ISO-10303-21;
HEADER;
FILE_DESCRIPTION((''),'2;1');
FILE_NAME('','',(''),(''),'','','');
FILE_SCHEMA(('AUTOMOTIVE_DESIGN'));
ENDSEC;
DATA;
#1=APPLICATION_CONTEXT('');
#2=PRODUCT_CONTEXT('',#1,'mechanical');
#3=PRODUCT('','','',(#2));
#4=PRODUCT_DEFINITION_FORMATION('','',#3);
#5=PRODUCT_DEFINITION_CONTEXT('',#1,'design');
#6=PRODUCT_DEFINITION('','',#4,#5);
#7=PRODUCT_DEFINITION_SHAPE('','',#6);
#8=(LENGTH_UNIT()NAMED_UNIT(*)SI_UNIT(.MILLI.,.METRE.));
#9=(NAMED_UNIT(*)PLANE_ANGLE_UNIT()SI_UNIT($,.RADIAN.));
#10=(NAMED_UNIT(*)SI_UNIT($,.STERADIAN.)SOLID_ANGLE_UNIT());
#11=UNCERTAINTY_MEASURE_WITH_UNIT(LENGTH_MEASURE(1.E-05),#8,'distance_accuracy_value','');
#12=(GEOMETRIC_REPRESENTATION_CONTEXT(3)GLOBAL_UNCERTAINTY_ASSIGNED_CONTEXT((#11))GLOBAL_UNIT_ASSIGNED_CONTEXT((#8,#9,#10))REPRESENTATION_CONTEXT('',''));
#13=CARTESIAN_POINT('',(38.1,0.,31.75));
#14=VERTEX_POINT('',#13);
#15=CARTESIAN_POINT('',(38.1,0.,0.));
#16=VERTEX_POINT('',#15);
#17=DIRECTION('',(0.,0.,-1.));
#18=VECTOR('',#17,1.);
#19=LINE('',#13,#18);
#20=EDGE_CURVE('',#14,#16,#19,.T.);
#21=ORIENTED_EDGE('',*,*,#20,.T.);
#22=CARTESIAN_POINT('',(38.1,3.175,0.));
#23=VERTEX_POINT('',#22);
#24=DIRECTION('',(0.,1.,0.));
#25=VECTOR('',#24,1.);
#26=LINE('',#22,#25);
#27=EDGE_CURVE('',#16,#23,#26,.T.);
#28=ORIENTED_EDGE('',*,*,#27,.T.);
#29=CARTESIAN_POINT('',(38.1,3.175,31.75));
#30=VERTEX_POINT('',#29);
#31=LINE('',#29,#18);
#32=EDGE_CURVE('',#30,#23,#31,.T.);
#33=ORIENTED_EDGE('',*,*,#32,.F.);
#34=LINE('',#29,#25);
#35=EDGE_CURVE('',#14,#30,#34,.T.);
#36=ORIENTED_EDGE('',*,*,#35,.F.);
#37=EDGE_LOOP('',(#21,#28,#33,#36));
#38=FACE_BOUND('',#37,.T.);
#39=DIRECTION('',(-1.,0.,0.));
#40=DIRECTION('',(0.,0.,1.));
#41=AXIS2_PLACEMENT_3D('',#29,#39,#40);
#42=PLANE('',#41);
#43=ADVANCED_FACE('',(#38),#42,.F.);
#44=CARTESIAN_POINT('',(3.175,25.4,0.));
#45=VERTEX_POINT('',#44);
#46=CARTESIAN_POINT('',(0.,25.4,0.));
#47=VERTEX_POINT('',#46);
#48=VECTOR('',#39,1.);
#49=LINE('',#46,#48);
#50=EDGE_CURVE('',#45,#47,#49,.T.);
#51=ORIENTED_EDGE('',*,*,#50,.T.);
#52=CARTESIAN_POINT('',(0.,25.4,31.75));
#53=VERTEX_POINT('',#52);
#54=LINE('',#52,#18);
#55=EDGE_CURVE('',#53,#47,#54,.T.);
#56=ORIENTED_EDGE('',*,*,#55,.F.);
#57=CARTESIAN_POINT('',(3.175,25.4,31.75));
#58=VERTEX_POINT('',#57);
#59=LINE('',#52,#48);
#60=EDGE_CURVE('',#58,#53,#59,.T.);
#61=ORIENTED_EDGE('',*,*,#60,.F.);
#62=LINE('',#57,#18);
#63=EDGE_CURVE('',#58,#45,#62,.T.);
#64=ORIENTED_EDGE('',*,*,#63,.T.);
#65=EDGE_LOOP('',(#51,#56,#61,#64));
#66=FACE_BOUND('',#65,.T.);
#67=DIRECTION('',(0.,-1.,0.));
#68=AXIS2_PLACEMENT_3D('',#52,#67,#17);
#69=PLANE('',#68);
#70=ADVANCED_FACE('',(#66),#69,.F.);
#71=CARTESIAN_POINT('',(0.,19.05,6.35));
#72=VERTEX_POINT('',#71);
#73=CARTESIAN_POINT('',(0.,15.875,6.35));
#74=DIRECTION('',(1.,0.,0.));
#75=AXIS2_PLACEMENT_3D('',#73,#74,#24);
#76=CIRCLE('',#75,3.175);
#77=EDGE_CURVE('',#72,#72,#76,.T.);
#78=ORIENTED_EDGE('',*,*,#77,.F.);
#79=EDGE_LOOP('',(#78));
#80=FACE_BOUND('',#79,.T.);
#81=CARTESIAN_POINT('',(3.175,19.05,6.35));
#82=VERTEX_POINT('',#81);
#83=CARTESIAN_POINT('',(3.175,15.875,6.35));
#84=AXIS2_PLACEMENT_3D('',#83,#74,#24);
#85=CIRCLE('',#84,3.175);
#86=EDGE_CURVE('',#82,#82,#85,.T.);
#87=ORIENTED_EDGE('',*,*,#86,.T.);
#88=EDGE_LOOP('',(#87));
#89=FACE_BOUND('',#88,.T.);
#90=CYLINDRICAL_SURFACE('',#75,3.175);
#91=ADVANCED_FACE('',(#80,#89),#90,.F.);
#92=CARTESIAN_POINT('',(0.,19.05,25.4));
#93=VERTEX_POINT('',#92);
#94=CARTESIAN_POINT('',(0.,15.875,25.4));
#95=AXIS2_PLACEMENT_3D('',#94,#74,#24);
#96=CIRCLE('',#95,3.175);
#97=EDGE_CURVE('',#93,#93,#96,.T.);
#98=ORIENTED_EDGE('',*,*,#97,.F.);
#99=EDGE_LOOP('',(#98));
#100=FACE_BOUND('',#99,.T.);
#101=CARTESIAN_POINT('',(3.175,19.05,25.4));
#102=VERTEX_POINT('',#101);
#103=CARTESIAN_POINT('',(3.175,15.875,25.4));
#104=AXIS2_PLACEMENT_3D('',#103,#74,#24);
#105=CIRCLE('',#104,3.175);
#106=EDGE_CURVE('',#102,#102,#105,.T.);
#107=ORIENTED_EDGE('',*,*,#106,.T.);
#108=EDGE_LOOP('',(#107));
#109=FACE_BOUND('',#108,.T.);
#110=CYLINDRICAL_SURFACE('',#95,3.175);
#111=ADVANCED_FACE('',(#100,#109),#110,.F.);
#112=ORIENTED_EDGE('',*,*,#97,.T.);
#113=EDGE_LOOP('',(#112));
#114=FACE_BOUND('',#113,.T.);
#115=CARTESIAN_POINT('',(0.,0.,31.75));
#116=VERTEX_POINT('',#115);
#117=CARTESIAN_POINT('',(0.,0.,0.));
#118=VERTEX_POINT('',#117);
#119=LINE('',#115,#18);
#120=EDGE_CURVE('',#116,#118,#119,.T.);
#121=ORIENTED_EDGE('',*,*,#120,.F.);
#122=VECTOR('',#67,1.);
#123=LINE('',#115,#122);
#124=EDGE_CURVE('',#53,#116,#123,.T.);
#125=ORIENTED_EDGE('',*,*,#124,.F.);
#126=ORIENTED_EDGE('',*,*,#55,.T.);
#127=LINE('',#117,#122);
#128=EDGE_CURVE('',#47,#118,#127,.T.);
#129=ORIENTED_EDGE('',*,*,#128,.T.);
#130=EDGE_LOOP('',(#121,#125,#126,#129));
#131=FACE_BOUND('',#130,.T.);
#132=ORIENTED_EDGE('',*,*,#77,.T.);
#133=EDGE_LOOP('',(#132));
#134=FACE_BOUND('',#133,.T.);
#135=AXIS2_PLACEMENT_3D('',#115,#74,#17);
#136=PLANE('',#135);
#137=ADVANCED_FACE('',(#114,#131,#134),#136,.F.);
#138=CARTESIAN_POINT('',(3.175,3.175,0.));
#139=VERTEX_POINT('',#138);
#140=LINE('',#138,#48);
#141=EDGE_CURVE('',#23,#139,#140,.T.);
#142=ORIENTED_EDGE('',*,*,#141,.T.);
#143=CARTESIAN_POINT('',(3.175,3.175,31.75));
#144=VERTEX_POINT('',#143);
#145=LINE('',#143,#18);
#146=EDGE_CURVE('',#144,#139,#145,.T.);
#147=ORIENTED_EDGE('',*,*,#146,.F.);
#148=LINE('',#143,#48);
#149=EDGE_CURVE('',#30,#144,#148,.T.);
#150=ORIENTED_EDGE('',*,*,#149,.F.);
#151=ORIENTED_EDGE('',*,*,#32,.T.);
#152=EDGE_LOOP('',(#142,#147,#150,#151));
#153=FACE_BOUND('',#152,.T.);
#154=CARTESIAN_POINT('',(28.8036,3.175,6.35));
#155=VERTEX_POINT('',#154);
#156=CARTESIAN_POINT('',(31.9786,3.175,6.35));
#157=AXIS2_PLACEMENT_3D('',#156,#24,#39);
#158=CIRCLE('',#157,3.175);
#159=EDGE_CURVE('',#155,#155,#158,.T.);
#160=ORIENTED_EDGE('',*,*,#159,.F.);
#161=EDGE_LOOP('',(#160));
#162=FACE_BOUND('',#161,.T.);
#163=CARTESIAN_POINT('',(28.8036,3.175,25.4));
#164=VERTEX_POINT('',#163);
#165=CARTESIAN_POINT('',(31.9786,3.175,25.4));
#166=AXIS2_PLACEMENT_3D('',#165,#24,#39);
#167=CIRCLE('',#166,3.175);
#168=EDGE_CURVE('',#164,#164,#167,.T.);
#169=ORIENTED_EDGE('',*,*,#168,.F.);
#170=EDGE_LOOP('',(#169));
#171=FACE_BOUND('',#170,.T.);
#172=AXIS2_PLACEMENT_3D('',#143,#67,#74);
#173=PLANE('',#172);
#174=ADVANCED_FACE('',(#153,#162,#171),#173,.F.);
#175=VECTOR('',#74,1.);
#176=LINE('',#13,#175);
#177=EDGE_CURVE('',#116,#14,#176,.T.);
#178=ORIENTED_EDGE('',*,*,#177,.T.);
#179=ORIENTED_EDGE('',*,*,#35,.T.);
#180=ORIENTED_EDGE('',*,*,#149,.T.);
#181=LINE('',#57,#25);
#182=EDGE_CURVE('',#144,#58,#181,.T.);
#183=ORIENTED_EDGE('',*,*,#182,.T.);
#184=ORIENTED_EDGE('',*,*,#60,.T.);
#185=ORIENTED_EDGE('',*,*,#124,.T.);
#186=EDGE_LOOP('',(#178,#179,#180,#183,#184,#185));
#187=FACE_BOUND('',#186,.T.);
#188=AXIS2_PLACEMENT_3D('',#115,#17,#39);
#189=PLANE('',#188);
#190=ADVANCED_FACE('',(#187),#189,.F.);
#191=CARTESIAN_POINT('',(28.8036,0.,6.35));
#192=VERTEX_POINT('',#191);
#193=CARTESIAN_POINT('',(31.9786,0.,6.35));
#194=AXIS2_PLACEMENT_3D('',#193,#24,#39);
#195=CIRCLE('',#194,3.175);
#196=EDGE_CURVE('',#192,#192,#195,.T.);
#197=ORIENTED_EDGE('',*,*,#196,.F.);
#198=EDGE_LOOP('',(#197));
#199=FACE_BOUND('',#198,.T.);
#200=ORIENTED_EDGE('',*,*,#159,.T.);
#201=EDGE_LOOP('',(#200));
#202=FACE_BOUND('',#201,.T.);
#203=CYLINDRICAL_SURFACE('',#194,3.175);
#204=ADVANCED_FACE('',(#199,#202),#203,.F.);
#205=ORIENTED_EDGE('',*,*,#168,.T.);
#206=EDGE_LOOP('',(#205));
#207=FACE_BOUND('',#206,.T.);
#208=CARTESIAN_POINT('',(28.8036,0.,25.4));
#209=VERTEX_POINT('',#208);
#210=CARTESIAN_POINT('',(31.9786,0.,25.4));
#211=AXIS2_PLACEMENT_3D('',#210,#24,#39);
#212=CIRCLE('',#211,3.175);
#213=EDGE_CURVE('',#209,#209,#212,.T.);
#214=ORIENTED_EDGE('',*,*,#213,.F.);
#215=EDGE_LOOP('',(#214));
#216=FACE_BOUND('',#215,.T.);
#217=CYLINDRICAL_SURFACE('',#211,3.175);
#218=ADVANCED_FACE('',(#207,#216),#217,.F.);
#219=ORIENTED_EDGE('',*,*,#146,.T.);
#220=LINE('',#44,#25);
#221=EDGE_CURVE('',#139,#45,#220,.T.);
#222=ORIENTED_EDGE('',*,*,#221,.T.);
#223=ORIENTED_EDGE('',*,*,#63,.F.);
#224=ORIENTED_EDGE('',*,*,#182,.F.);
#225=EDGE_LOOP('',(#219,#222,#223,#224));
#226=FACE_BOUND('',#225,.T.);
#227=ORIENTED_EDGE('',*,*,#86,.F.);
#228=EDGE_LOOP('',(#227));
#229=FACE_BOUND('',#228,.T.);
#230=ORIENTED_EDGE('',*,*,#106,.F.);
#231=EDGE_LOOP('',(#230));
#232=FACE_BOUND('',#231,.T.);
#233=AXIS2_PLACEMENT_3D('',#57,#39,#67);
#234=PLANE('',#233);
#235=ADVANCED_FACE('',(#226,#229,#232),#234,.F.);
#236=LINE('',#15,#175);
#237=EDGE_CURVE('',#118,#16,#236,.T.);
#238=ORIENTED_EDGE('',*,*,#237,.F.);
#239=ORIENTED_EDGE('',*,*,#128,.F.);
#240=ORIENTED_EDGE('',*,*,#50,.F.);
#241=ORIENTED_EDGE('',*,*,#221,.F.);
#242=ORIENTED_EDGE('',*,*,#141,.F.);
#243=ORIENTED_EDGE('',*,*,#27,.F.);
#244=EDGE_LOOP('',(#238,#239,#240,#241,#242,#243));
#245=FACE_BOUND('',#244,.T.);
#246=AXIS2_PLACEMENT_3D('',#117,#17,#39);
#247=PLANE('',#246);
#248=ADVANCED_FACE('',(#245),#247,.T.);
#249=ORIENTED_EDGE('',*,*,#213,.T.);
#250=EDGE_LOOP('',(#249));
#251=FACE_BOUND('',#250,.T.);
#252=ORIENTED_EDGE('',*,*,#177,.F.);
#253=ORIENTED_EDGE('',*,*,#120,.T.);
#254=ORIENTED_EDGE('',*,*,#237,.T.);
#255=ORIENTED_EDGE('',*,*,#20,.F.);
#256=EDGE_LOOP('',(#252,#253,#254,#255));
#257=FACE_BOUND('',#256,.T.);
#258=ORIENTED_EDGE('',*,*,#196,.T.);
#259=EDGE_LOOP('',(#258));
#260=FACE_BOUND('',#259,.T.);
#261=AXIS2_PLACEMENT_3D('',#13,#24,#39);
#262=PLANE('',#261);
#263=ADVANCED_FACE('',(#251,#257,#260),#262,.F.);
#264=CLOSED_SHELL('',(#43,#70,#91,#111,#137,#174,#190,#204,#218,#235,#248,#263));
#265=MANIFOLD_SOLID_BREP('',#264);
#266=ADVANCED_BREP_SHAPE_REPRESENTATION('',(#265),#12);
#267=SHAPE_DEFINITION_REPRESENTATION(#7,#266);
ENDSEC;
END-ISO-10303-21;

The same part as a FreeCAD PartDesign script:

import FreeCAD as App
import Part
import Sketcher

V = App.Vector
Q = App.Units.Quantity

doc = App.newDocument("Part")
body = doc.addObject("PartDesign::Body", "Body")

# Sketch on XY plane
sketch1 = body.newObject("Sketcher::SketchObject", "Sketch")
sketch1.AttachmentSupport = (doc.getObject("XY_Plane"), [""])
sketch1.MapMode = "FlatFace"
sketch1.addGeometry(Part.LineSegment(V(0, 25.4, 0), V(0, 0, 0)), False)
sketch1.addGeometry(Part.LineSegment(V(0, 0, 0), V(38.1, 0, 0)), False)
sketch1.addGeometry(Part.LineSegment(V(38.1, 0, 0), V(38.1, 3.2, 0)), False)
sketch1.addGeometry(Part.LineSegment(V(38.1, 3.2, 0), V(3.2, 3.2, 0)), False)
sketch1.addGeometry(Part.LineSegment(V(3.2, 3.2, 0), V(3.2, 25.4, 0)), False)
sketch1.addGeometry(Part.LineSegment(V(3.2, 25.4, 0), V(0, 25.4, 0)), False)
sketch1.addConstraint(Sketcher.Constraint("Coincident", 0, 2, 1, 1))
sketch1.addConstraint(Sketcher.Constraint("Coincident", 1, 2, 2, 1))
sketch1.addConstraint(Sketcher.Constraint("Coincident", 2, 2, 3, 1))
sketch1.addConstraint(Sketcher.Constraint("Coincident", 3, 2, 4, 1))
sketch1.addConstraint(Sketcher.Constraint("Coincident", 4, 2, 5, 1))
sketch1.addConstraint(Sketcher.Constraint("Coincident", 5, 2, 0, 1))
sketch1.addConstraint(Sketcher.Constraint("Vertical", 0))
sketch1.addConstraint(Sketcher.Constraint("Horizontal", 1))
sketch1.addConstraint(Sketcher.Constraint("Vertical", 2))
sketch1.addConstraint(Sketcher.Constraint("Horizontal", 3))
sketch1.addConstraint(Sketcher.Constraint("Vertical", 4))
sketch1.addConstraint(Sketcher.Constraint("Horizontal", 5))
sketch1.addConstraint(Sketcher.Constraint("Coincident", 0, 2, -1, 1))
sketch1.addConstraint(Sketcher.Constraint("Equal", 5, 2))
sketch1.addConstraint(Sketcher.Constraint("DistanceY", 0, 2, 0, 1, Q("1 in")))
sketch1.addConstraint(Sketcher.Constraint("DistanceX", 1, 1, 1, 2, Q("1.5 in")))
sketch1.addConstraint(Sketcher.Constraint("DistanceX", 3, 2, 3, 1, Q("1.375 in")))
pad1 = body.newObject("PartDesign::Pad", "Pad")
pad1.Profile = sketch1
pad1.Length = Q("1.25 in")

# Sketch on XZ plane
sketch2 = body.newObject("Sketcher::SketchObject", "Sketch001")
sketch2.AttachmentSupport = (doc.getObject("XZ_Plane"), [""])
sketch2.MapMode = "FlatFace"
sketch2.AttachmentOffset = App.Placement(V(0, 0, -0.125 * 25.4), App.Rotation())
sketch2.addGeometry(Part.Circle(V(32, 6.3, 0), V(0, 0, 1), 3.2), False)
sketch2.addGeometry(Part.Circle(V(32, 25.4, 0), V(0, 0, 1), 3.2), False)
sketch2.addConstraint(Sketcher.Constraint("Equal", 0, 1))
sketch2.addConstraint(Sketcher.Constraint("Vertical", 0, 3, 1, 3))
sketch2.addConstraint(Sketcher.Constraint("Diameter", 0, Q("0.25 in")))
sketch2.addConstraint(Sketcher.Constraint("DistanceY", -1, 1, 1, 3, Q("1 in")))
sketch2.addConstraint(Sketcher.Constraint("DistanceY", -1, 1, 0, 3, Q("0.25 in")))
sketch2.addConstraint(Sketcher.Constraint("DistanceX", -1, 1, 0, 3, Q("1.259 in")))
pocket1 = body.newObject("PartDesign::Pocket", "Pocket")
pocket1.Profile = sketch2
pocket1.Type = "ThroughAll"
pocket1.Reversed = True

# Sketch on YZ plane
sketch3 = body.newObject("Sketcher::SketchObject", "Sketch002")
sketch3.AttachmentSupport = (doc.getObject("YZ_Plane"), [""])
sketch3.MapMode = "FlatFace"
sketch3.AttachmentOffset = App.Placement(V(0, 0, 0.125 * 25.4), App.Rotation())
sketch3.addGeometry(Part.Circle(V(15.9, 25.4, 0), V(0, 0, 1), 3.2), False)
sketch3.addGeometry(Part.Circle(V(15.9, 6.3, 0), V(0, 0, 1), 3.2), False)
sketch3.addConstraint(Sketcher.Constraint("Equal", 0, 1))
sketch3.addConstraint(Sketcher.Constraint("Vertical", 0, 3, 1, 3))
sketch3.addConstraint(Sketcher.Constraint("Diameter", 0, Q("0.25 in")))
sketch3.addConstraint(Sketcher.Constraint("DistanceY", -1, 1, 0, 3, Q("1 in")))
sketch3.addConstraint(Sketcher.Constraint("DistanceY", -1, 1, 1, 3, Q("0.25 in")))
sketch3.addConstraint(Sketcher.Constraint("DistanceX", -1, 1, 0, 3, Q("0.625 in")))
pocket2 = body.newObject("PartDesign::Pocket", "Pocket001")
pocket2.Profile = sketch3
pocket2.Type = "ThroughAll"

doc.recompute()
